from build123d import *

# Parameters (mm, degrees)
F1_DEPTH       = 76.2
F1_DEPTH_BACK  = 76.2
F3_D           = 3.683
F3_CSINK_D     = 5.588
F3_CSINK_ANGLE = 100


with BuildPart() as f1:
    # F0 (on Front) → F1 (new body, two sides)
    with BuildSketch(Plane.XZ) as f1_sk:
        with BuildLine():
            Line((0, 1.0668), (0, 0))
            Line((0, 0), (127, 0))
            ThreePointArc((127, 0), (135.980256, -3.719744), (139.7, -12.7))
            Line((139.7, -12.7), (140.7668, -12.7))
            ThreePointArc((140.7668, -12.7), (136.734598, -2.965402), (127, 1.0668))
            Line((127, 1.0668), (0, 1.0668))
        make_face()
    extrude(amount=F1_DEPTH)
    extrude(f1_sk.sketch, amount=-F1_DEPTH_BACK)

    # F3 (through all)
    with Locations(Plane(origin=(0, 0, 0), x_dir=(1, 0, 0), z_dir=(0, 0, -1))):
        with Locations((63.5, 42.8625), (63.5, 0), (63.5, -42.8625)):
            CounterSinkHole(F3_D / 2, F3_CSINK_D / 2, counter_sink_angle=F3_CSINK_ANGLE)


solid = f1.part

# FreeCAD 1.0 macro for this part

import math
import FreeCAD as App
import Part
import Sketcher

V = App.Vector
Q = App.Units.Quantity

doc = App.newDocument("Part")
body = doc.addObject("PartDesign::Body", "Body")

sketch1 = body.newObject("Sketcher::SketchObject", "Sketch")
sketch1.AttachmentSupport = (doc.getObject("XZ_Plane"), [""])
sketch1.MapMode = "FlatFace"
sketch1.addGeometry([
    Part.LineSegment(V(0, 1.1, 0), V(0, 0, 0)),
    Part.LineSegment(V(0, 0, 0), V(127, 0, 0)),
    Part.ArcOfCircle(Part.Circle(V(127, -12.7, 0), V(0, 0, 1), 12.7), math.radians(0), math.radians(90)),
    Part.LineSegment(V(139.7, -12.7, 0), V(140.8, -12.7, 0)),
    Part.ArcOfCircle(Part.Circle(V(127, -12.7, 0), V(0, 0, 1), 13.8), math.radians(0), math.radians(90)),
    Part.LineSegment(V(127, 1.1, 0), V(0, 1.1, 0)),
], False)
sketch1.addConstraint([
    Sketcher.Constraint("Coincident", 0, 2, 1, 1),
    Sketcher.Constraint("Tangent", 1, 2, 2, 2),
    Sketcher.Constraint("Coincident", 2, 1, 3, 1),
    Sketcher.Constraint("Coincident", 3, 2, 4, 1),
    Sketcher.Constraint("Tangent", 4, 2, 5, 1),
    Sketcher.Constraint("Coincident", 5, 2, 0, 1),
    Sketcher.Constraint("Vertical", 0),
    Sketcher.Constraint("Horizontal", 1),
    Sketcher.Constraint("Horizontal", 3),
    Sketcher.Constraint("Horizontal", 5),
    Sketcher.Constraint("Coincident", 0, 2, -1, 1),
    Sketcher.Constraint("Coincident", 4, 3, 2, 3),
    Sketcher.Constraint("Horizontal", 4, 3, 2, 1),
    Sketcher.Constraint("Radius", 2, Q("0.5 in")),
    Sketcher.Constraint("DistanceX", 1, 1, 1, 2, Q("5 in")),
    Sketcher.Constraint("Radius", 4, Q("0.542 in")),
])
pad1 = body.newObject("PartDesign::Pad", "Pad")
pad1.Profile = sketch1
pad1.Type = "TwoLengths"
pad1.Length = Q("3 in")
pad1.Length2 = Q("3 in")

sketch2 = body.newObject("Sketcher::SketchObject", "Sketch001")
sketch2.AttachmentSupport = (doc.getObject("XY_Plane"), [""])
sketch2.MapMode = "FlatFace"
sketch2.addGeometry([
    Part.Circle(V(63.5, -42.9, 0), V(0, 0, 1), 1.8),
    Part.Circle(V(63.5, 0, 0), V(0, 0, 1), 1.8),
    Part.Circle(V(63.5, 42.9, 0), V(0, 0, 1), 1.8),
], False)
sketch2.addConstraint([
    Sketcher.Constraint("Equal", 0, 1),
    Sketcher.Constraint("Equal", 1, 2),
    Sketcher.Constraint("Symmetric", 0, 3, 2, 3, -1),
    Sketcher.Constraint("PointOnObject", 1, 3, -1),
    Sketcher.Constraint("Vertical", 0, 3, 1, 3),
    Sketcher.Constraint("Diameter", 0, Q("0.145 in")),
    Sketcher.Constraint("DistanceX", -1, 1, 0, 3, Q("2.5 in")),
    Sketcher.Constraint("DistanceY", 0, 3, -1, 1, Q("1.6875 in")),
])
doc.recompute()
hole = body.newObject("PartDesign::Hole", "Hole")
hole.Profile = sketch2
hole.ThreadType = "None"
hole.Diameter = Q("0.145 in")
hole.DepthType = "ThroughAll"
hole.HoleCutType = "Countersink"
hole.HoleCutDiameter = Q("0.22 in")
hole.HoleCutCountersinkAngle = 100
hole.Reversed = True

doc.recompute()
